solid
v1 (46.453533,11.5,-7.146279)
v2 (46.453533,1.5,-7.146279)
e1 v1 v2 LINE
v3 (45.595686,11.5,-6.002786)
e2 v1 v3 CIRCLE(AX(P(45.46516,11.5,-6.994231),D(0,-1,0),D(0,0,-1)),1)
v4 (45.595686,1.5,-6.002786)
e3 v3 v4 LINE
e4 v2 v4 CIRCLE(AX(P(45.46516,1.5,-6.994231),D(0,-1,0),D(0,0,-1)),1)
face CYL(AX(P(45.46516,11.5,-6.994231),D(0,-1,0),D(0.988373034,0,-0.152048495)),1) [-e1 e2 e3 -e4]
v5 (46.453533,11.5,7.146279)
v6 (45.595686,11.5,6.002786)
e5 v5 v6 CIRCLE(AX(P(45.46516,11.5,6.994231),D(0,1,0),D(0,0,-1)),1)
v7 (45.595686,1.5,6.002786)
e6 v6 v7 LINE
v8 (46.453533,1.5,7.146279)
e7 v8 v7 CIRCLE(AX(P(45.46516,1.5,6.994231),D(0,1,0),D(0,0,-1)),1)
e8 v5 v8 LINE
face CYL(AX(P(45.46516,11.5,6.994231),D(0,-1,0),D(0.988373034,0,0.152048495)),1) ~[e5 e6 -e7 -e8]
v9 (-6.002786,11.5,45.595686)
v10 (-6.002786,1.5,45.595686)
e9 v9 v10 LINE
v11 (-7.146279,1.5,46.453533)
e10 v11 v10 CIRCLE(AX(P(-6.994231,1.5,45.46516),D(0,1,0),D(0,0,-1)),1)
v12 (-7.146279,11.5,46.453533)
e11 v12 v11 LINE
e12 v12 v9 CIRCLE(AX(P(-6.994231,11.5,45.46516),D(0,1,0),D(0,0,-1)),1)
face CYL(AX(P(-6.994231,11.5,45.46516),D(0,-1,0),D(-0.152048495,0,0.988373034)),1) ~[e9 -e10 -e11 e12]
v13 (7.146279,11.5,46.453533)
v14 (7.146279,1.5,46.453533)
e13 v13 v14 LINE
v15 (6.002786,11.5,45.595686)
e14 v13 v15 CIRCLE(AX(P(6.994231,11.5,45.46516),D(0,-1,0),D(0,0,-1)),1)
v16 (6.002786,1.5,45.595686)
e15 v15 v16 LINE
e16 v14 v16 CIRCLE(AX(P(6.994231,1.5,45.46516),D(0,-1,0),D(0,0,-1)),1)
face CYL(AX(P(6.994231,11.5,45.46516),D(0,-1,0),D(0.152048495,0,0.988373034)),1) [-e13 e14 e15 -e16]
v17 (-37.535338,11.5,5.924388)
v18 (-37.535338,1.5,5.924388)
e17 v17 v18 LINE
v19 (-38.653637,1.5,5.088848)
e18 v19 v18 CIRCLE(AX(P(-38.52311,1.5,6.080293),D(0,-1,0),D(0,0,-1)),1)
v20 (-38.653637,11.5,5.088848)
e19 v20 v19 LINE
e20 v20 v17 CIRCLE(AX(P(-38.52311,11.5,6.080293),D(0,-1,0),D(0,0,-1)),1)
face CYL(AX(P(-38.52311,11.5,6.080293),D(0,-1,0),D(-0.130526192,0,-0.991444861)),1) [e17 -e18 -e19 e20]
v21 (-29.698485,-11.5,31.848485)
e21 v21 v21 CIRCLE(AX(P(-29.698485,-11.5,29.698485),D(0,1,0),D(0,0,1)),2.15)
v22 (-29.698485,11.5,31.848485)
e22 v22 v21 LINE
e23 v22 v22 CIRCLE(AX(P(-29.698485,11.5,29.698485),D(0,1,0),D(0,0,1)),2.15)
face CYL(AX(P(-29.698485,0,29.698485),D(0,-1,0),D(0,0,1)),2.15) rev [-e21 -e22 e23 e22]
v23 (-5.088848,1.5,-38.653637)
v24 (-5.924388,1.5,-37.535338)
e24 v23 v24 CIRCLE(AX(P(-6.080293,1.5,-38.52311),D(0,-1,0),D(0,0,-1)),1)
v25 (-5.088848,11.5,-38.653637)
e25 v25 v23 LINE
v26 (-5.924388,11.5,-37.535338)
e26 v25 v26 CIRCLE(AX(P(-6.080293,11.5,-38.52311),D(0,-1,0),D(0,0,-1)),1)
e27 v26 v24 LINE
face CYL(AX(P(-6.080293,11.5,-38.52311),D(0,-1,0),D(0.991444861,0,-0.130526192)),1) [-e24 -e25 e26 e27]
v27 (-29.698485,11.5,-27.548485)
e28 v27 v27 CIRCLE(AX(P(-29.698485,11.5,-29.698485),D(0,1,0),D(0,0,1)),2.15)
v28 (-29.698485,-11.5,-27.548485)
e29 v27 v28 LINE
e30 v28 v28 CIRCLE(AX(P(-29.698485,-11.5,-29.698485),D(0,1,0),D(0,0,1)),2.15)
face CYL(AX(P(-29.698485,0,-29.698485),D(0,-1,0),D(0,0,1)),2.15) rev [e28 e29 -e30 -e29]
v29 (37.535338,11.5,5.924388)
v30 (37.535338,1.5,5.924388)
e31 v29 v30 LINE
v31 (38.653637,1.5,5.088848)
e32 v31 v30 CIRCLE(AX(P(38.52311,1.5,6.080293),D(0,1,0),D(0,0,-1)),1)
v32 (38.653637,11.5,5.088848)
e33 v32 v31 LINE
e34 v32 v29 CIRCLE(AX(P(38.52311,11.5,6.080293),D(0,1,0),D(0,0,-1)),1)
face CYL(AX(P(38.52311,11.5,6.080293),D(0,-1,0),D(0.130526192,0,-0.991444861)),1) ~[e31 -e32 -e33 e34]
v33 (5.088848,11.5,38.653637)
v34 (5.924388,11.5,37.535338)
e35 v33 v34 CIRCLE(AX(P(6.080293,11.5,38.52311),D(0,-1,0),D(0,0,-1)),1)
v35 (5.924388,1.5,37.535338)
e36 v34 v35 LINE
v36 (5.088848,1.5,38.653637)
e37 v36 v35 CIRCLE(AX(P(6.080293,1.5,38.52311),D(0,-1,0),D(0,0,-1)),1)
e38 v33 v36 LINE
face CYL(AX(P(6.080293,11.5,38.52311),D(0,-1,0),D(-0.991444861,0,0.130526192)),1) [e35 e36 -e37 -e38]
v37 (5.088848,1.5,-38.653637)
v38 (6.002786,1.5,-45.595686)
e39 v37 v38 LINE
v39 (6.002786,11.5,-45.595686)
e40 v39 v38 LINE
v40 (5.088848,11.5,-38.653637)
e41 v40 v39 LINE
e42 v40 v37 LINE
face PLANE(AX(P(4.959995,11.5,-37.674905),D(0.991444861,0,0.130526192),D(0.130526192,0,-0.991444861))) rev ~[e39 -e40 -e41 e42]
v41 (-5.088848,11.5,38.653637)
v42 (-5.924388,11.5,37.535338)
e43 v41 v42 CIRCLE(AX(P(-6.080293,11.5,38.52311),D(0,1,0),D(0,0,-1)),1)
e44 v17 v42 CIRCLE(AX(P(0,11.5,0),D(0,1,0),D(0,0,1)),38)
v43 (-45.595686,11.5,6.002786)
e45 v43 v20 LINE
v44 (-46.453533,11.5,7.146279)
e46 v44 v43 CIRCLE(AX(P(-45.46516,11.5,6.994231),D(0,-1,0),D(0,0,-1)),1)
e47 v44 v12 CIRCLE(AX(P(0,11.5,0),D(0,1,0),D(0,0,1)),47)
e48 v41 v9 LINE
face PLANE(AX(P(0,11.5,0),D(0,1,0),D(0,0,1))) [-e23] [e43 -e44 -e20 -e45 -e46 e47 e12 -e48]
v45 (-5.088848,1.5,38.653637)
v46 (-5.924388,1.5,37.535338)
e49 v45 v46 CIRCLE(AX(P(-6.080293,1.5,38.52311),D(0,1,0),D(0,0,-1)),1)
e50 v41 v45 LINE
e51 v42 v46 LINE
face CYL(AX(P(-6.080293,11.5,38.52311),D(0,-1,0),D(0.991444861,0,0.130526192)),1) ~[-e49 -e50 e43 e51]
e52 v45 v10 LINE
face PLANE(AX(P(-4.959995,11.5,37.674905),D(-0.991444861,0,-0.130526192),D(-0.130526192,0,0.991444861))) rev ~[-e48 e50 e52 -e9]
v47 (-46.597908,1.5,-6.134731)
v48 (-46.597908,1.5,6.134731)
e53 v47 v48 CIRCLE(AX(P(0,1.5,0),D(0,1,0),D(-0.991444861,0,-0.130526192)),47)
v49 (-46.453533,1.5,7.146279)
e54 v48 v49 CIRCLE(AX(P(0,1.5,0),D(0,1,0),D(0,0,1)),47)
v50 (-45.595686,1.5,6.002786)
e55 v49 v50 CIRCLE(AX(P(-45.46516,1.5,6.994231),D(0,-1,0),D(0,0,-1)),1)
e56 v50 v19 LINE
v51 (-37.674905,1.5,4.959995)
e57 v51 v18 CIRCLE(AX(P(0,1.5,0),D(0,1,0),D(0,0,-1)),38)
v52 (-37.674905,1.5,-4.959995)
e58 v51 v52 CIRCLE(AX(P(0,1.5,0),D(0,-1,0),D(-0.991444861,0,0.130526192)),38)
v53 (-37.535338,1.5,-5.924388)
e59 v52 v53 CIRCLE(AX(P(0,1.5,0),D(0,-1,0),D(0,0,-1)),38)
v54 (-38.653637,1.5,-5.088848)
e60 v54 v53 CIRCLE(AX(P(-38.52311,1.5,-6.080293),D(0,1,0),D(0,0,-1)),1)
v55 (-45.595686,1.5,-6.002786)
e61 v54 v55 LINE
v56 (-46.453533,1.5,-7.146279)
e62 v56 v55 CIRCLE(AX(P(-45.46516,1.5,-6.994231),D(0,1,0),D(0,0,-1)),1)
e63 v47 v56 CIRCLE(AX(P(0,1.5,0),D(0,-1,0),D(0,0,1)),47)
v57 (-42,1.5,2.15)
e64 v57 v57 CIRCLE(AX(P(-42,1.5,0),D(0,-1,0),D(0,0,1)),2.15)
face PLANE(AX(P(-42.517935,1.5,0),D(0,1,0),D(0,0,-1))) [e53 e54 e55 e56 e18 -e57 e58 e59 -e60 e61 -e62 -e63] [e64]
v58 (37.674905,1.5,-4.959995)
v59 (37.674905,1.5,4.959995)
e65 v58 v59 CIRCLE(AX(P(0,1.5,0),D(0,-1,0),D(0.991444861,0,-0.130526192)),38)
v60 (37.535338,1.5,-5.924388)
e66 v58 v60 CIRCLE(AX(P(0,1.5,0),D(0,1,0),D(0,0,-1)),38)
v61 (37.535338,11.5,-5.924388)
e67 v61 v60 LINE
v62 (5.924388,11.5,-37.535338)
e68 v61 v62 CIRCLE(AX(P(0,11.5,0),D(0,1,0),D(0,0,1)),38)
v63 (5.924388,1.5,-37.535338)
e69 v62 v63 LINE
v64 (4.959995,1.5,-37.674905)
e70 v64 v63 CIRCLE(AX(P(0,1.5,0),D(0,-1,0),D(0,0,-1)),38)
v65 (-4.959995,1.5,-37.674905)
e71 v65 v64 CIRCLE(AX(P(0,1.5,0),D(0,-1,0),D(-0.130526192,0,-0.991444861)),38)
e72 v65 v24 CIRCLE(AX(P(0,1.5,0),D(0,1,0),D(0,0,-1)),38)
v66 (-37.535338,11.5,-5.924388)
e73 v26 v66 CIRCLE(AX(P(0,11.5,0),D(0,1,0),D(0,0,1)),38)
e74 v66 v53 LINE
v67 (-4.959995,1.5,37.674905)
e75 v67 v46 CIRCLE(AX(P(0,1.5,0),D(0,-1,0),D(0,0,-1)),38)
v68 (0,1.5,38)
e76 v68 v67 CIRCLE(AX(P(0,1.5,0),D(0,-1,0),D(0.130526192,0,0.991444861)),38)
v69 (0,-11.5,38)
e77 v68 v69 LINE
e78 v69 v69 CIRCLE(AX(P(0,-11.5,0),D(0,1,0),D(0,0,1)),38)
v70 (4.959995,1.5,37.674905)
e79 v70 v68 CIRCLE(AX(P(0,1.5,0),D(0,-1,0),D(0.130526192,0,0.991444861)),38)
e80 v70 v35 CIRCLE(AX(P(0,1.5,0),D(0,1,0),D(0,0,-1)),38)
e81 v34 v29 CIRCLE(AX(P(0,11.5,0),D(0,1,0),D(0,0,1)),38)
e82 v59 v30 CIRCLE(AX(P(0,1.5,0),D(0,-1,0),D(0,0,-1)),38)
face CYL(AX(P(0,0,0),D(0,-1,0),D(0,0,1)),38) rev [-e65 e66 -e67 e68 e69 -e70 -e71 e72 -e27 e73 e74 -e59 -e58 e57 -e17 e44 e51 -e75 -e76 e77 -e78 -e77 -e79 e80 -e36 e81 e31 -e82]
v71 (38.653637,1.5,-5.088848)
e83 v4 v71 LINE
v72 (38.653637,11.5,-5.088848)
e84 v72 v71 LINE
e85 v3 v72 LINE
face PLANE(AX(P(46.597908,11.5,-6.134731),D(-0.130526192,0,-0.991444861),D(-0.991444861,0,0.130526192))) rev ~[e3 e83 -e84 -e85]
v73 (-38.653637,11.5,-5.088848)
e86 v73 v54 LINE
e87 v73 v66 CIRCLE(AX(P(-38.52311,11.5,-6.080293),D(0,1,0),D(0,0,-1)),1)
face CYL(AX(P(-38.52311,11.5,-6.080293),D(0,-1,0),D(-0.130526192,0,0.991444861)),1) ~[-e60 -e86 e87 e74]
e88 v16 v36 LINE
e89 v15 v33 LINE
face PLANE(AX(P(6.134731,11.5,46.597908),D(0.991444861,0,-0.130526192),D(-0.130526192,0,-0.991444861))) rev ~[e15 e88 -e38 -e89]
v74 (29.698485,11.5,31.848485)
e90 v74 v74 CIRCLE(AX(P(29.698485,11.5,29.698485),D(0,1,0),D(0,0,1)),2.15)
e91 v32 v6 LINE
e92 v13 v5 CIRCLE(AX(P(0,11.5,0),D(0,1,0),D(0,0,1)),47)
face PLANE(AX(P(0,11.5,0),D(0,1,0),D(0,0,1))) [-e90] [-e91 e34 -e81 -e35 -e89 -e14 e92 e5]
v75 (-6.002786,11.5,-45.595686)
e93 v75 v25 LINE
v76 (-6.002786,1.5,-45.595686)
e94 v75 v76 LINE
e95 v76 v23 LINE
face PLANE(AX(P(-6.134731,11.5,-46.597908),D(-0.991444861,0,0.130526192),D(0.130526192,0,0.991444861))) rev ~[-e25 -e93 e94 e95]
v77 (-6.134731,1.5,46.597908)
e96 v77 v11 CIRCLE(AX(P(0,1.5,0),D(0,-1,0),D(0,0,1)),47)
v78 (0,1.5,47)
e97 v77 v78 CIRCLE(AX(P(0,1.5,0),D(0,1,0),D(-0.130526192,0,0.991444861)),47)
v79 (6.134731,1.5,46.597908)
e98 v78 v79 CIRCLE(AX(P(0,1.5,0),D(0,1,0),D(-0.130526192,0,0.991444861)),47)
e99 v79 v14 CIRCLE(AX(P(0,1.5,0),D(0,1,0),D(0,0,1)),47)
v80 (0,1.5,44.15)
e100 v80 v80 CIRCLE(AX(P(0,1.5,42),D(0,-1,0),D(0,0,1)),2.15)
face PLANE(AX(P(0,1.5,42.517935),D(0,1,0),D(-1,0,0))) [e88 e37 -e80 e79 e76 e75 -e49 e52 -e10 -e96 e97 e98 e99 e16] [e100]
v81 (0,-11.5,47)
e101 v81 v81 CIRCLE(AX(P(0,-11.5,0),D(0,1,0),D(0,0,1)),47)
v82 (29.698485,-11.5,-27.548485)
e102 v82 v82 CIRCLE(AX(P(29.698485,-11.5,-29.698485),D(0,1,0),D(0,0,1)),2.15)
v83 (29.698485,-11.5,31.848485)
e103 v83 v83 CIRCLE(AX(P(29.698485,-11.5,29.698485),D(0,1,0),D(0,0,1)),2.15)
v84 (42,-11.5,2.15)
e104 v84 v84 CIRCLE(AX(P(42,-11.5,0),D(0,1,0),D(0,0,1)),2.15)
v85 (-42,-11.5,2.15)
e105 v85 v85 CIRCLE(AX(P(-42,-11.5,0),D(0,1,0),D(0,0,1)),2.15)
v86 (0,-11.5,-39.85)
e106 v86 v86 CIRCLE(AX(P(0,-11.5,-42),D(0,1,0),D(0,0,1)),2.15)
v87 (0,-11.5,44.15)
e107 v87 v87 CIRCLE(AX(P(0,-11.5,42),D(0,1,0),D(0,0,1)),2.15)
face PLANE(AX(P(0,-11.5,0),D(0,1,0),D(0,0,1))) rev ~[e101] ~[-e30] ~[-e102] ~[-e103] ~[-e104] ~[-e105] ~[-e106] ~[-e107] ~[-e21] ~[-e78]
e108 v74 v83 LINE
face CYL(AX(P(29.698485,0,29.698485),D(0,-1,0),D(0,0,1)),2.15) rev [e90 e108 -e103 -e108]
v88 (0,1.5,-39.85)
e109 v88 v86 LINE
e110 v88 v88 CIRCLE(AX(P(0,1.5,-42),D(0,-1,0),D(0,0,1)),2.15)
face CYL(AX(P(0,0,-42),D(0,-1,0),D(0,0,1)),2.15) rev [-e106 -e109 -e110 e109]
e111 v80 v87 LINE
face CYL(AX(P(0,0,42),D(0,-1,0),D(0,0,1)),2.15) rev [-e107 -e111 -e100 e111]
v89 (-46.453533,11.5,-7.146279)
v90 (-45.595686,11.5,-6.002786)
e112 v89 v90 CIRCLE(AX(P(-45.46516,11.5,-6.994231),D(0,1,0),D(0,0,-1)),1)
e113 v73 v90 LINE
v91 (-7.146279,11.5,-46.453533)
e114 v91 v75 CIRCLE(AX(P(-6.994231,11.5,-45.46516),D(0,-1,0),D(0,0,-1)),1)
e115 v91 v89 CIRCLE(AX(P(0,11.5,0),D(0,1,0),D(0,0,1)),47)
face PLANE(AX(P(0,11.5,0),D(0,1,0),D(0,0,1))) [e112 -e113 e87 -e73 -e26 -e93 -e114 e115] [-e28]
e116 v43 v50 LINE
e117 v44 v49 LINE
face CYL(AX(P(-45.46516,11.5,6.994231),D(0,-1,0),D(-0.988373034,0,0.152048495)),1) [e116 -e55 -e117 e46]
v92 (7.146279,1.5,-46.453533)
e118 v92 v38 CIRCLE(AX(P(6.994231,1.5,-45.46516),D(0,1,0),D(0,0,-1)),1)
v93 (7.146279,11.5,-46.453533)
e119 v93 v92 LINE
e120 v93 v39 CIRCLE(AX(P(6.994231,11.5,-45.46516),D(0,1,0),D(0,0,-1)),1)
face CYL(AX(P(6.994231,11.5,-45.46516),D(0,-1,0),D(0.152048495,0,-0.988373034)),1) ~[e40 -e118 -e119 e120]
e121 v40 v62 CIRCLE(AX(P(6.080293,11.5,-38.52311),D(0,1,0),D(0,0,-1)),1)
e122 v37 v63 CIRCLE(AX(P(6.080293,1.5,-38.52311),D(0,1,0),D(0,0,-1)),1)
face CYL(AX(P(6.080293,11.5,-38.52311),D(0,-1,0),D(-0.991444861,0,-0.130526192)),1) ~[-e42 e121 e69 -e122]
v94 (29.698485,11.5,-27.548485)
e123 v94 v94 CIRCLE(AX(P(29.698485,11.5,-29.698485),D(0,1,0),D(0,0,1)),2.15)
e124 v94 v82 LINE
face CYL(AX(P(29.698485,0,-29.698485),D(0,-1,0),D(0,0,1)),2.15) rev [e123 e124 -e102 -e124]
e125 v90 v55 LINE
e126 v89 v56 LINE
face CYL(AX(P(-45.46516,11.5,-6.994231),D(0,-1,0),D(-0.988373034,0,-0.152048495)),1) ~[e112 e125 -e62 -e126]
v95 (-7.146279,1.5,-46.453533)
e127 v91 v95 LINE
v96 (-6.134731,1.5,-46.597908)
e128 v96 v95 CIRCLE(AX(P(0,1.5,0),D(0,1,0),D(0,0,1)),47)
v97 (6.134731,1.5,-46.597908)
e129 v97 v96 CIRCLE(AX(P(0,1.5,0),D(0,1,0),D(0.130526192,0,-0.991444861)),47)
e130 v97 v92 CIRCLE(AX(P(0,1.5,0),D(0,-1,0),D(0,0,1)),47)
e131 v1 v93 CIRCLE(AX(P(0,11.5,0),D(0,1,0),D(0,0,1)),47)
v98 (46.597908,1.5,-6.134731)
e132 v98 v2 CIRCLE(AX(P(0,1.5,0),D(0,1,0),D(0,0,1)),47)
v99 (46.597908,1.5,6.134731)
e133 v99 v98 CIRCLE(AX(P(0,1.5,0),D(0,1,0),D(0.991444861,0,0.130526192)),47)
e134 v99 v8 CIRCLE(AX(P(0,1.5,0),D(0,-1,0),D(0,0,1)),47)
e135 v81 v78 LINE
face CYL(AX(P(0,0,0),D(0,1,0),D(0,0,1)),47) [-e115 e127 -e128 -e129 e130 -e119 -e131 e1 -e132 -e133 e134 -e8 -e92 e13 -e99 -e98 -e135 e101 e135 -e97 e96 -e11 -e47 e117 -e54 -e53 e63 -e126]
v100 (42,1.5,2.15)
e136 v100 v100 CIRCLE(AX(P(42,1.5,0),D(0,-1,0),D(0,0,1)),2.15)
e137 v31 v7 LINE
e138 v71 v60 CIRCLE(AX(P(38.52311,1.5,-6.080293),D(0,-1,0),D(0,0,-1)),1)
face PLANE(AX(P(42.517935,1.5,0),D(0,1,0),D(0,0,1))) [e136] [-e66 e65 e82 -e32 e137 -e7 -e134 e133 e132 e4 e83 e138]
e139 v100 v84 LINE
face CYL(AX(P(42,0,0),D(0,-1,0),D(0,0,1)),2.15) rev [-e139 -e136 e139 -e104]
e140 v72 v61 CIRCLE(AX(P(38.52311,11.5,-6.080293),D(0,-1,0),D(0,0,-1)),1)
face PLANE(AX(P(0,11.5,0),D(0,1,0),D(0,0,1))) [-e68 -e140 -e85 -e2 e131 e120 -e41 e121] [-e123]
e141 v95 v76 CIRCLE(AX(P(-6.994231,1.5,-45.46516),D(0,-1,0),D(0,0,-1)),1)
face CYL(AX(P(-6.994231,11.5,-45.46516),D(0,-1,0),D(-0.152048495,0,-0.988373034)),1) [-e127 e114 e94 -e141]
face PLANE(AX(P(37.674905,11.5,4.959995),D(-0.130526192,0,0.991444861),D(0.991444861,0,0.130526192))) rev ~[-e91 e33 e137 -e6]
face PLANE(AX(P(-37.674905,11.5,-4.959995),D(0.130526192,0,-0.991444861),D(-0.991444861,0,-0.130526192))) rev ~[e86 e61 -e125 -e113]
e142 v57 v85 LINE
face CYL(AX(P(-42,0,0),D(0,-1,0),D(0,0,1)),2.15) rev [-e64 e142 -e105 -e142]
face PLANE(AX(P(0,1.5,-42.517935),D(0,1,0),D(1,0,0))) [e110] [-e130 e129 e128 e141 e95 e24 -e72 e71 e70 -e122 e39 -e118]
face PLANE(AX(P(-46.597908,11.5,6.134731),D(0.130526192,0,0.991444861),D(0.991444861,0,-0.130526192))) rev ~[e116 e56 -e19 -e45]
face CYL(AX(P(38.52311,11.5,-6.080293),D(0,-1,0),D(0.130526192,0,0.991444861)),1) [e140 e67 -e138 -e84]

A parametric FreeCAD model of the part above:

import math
import FreeCAD as App
import Part
import Sketcher

V = App.Vector
Q = App.Units.Quantity


def edges_at(feature, points):
    """Names of the edges that pass closest to the given points."""
    edges = feature.Shape.Edges
    near = lambda p: min(range(len(edges)), key=lambda i: edges[i].distToShape(Part.Vertex(*p))[0])
    return sorted({f"Edge{near(p) + 1}" for p in points})

doc = App.newDocument("Part")
body = doc.addObject("PartDesign::Body", "Body")

# Sketch on XZ plane
sketch1 = body.newObject("Sketcher::SketchObject", "Sketch")
sketch1.AttachmentSupport = (doc.getObject("XZ_Plane"), [""])
sketch1.MapMode = "FlatFace"
sketch1.addGeometry([
    Part.Circle(V(0, 0, 0), V(0, 0, 1), 47),  # 0
    Part.Circle(V(-29.7, -29.7, 0), V(0, 0, 1), 2.1),  # 1
    Part.Circle(V(0, -42, 0), V(0, 0, 1), 2.1),  # 2
    Part.Circle(V(-42, 0, 0), V(0, 0, 1), 2.1),  # 3
    Part.Circle(V(-29.7, 29.7, 0), V(0, 0, 1), 2.1),  # 4
    Part.Circle(V(29.7, -29.7, 0), V(0, 0, 1), 2.1),  # 5
    Part.Circle(V(42, 0, 0), V(0, 0, 1), 2.1),  # 6
    Part.Circle(V(0, 0, 0), V(0, 0, 1), 38),  # 7
    Part.Circle(V(0, 42, 0), V(0, 0, 1), 2.1),  # 8
    Part.Circle(V(29.7, 29.7, 0), V(0, 0, 1), 2.1),  # 9
], False)
sketch1.addConstraint([
    Sketcher.Constraint("Coincident", 0, 3, -1, 1),
    Sketcher.Constraint("Coincident", 7, 3, -1, 1),
    Sketcher.Constraint("Equal", 1, 2),
    Sketcher.Constraint("Equal", 2, 3),
    Sketcher.Constraint("Equal", 3, 4),
    Sketcher.Constraint("Equal", 4, 5),
    Sketcher.Constraint("Equal", 5, 6),
    Sketcher.Constraint("Equal", 6, 8),
    Sketcher.Constraint("Equal", 8, 9),
    Sketcher.Constraint("Symmetric", 4, 3, 5, 3, -1, 1),
    Sketcher.Constraint("Symmetric", 3, 3, 6, 3, -1, 1),
    Sketcher.Constraint("Symmetric", 2, 3, 8, 3, -1, 1),
    Sketcher.Constraint("Symmetric", 1, 3, 9, 3, -1, 1),
    Sketcher.Constraint("Symmetric", 1, 3, 5, 3, -2),
    Sketcher.Constraint("PointOnObject", 2, 3, -2),
    Sketcher.Constraint("PointOnObject", 3, 3, -1),
    Sketcher.Constraint("Diameter", 0, Q("94 mm")),
    Sketcher.Constraint("Diameter", 7, Q("76 mm")),
    Sketcher.Constraint("Diameter", 1, Q("4.3 mm")),
    Sketcher.Constraint("DistanceY", 2, 3, -1, 1, Q("42 mm")),
    Sketcher.Constraint("DistanceX", 3, 3, -1, 1, Q("42 mm")),
    Sketcher.Constraint("DistanceY", 1, 3, 4, 3, Q("59.39697 mm")),
    Sketcher.Constraint("DistanceX", 1, 3, 5, 3, Q("59.39697 mm")),
])
pad1 = body.newObject("PartDesign::Pad", "Pad")
pad1.Profile = sketch1
pad1.Length = 23
pad1.Midplane = True

# Sketch on XZ plane
sketch2 = body.newObject("Sketcher::SketchObject", "Sketch001")
sketch2.AttachmentSupport = (doc.getObject("XZ_Plane"), [""])
sketch2.MapMode = "FlatFace"
sketch2.AttachmentOffset = App.Placement(V(0, 0, -11.5), App.Rotation())
sketch2.addGeometry([
    Part.LineSegment(V(-6, -47, 0), V(-5, -38, 0)),
    Part.ArcOfCircle(Part.Circle(V(0, 0, 0), V(0, 0, 1), 38), math.radians(-97.5), math.radians(-82.5)),
    Part.LineSegment(V(5, -38, 0), V(6, -47, 0)),
    Part.ArcOfCircle(Part.Circle(V(0, 0, 0), V(0, 0, 1), 47), math.radians(-97.5), math.radians(-82.5)),
], False)
sketch2.addConstraint([
    Sketcher.Constraint("Coincident", 0, 2, 1, 1),
    Sketcher.Constraint("Coincident", 1, 2, 2, 1),
    Sketcher.Constraint("Coincident", 2, 2, 3, 2),
    Sketcher.Constraint("Coincident", 3, 1, 0, 1),
    Sketcher.Constraint("Coincident", 1, 3, -1, 1),
    Sketcher.Constraint("Coincident", 3, 3, -1, 1),
    Sketcher.Constraint("Horizontal", 0, 2, 1, 2),
    Sketcher.Constraint("Horizontal", 2, 2, 3, 1),
    Sketcher.Constraint("Radius", 1, Q("38 mm")),
    Sketcher.Constraint("Radius", 3, Q("47 mm")),
    Sketcher.Constraint("Angle", 0, Q("82.5 deg")),
    Sketcher.Constraint("DistanceX", -1, 1, 2, 2, Q("6.134731 mm")),
])
pocket1 = body.newObject("PartDesign::Pocket", "Pocket")
pocket1.Profile = sketch2
pocket1.Length = 10
pocket1.Reversed = True
doc.recompute()

fillet = body.newObject("PartDesign::Fillet", "Fillet")
fillet.Base = (pocket1, edges_at(pocket1, [
    (-6.135, 6.5, -46.598),
    (6.135, 6.5, -46.598),
    (4.96, 6.5, -37.675),
    (-4.96, 6.5, -37.675),
]))
fillet.Radius = 1
doc.recompute()

polarpattern = body.newObject("PartDesign::PolarPattern", "PolarPattern")
polarpattern.Originals = [pocket1]
polarpattern.Axis = (doc.getObject("Y_Axis"), [""])
polarpattern.Angle = 360
polarpattern.Occurrences = 4
body.Tip = polarpattern
doc.recompute()

fillet2 = body.newObject("PartDesign::Fillet", "Fillet001")
fillet2.Base = (polarpattern, edges_at(polarpattern, [
    (-46.598, 6.5, 6.135),
    (-46.598, 6.5, -6.135),
    (-37.675, 6.5, -4.96),
    (-37.675, 6.5, 4.96),
    (6.135, 6.5, 46.598),
    (-6.135, 6.5, 46.598),
    (-4.96, 6.5, 37.675),
    (4.96, 6.5, 37.675),
    (46.598, 6.5, -6.135),
    (46.598, 6.5, 6.135),
    (37.675, 6.5, 4.96),
    (37.675, 6.5, -4.96),
]))
fillet2.Radius = 1

doc.recompute()
